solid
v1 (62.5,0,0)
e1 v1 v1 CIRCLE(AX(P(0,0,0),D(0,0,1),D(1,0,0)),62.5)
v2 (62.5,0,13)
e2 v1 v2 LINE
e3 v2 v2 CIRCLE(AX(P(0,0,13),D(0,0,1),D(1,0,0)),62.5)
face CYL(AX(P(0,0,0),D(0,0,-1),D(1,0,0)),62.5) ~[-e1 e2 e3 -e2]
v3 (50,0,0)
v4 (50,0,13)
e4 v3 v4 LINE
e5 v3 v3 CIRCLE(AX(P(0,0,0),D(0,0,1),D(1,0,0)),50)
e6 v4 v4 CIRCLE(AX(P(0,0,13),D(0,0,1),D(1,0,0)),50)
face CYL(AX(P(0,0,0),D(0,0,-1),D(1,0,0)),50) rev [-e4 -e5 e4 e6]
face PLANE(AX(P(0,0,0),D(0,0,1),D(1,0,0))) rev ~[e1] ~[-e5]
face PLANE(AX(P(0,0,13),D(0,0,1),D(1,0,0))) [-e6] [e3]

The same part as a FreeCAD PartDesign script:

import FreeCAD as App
import Part
import Sketcher
from FreeCAD import Vector

doc = App.newDocument("Part")
body = doc.addObject("PartDesign::Body", "Body")

sketch1 = body.newObject("Sketcher::SketchObject", "Sketch")
sketch1.AttachmentSupport = (doc.getObject("XY_Plane"), [""])
sketch1.MapMode = "FlatFace"
sketch1.addGeometry([
    Part.Circle(Vector(0, 0, 0), Vector(0, 0, 1), 62),
    Part.Circle(Vector(0, 0, 0), Vector(0, 0, 1), 50),
], False)
sketch1.addConstraint([
    Sketcher.Constraint("Coincident", 0, 3, -1, 1),
    Sketcher.Constraint("Coincident", 1, 3, -1, 1),
    Sketcher.Constraint("Diameter", 0, 125.0),
    Sketcher.Constraint("Diameter", 1, 100.0),
])
pad1 = body.newObject("PartDesign::Pad", "Pad")
pad1.Profile = sketch1
pad1.Length = 13

doc.recompute()
